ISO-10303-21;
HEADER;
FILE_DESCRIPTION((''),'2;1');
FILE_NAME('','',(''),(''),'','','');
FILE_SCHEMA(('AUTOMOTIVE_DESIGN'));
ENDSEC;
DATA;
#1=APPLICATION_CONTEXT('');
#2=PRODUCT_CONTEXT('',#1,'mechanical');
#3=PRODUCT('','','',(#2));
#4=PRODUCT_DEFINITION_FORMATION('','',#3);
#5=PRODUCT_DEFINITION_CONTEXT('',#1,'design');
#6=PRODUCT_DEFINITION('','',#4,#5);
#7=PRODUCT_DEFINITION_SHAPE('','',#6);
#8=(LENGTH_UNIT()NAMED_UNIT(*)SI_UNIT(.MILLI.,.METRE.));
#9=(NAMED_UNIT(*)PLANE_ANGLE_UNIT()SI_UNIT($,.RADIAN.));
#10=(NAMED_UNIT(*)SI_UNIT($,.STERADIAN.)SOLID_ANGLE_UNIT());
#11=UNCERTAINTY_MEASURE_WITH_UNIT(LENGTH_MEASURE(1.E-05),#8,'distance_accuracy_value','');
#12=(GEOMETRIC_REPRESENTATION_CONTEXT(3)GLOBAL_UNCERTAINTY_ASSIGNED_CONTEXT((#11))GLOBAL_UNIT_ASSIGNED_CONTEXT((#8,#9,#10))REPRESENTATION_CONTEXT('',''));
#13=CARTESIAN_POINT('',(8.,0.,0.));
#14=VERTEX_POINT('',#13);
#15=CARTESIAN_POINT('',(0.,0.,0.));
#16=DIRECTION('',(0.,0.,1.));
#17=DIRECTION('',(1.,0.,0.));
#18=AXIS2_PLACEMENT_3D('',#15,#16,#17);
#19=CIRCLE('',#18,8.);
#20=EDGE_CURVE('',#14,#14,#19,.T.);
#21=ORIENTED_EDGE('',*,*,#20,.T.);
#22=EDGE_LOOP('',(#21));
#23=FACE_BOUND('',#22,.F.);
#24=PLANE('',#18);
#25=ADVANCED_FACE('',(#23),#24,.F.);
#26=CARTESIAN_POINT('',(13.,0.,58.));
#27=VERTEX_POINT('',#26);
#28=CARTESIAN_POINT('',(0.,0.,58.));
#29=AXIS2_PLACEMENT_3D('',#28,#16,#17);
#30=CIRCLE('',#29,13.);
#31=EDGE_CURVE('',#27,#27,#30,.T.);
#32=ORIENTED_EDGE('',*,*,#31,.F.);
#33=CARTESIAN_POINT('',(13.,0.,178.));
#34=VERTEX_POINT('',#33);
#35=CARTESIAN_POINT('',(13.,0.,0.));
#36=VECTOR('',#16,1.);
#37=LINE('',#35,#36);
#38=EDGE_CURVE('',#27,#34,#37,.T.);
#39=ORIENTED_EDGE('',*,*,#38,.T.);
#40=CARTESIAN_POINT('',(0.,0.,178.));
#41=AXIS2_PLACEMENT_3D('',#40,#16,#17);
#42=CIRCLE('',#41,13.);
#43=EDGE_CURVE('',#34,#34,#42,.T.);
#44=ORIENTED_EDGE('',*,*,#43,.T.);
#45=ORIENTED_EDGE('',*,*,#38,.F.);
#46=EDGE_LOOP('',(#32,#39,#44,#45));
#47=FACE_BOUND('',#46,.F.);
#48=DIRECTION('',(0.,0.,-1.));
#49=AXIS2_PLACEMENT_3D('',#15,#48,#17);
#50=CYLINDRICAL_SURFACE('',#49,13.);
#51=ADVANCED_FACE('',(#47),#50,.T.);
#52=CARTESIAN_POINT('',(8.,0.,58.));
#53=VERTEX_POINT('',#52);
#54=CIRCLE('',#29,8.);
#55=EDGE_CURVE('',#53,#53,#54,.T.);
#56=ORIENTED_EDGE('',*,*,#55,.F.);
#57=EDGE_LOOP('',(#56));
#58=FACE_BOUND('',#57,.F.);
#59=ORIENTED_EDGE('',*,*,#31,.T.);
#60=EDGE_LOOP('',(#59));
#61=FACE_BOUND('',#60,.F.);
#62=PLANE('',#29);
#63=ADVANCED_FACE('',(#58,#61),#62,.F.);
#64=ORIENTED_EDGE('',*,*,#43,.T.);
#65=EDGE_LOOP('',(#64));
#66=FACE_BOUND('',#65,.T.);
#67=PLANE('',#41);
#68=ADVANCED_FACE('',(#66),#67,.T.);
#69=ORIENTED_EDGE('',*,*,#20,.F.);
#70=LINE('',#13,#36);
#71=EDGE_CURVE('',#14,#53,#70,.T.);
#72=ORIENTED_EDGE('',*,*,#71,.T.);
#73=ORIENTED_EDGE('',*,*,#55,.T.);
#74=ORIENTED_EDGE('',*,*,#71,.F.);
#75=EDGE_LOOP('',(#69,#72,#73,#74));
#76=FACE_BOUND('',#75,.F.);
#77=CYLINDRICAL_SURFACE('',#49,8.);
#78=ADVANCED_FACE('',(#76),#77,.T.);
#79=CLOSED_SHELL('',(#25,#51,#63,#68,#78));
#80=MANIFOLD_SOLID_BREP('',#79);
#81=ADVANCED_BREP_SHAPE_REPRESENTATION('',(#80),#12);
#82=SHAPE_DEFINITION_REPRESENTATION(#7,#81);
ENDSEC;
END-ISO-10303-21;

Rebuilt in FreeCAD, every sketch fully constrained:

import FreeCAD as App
import Part
import Sketcher

doc = App.newDocument("Part")
body = doc.addObject("PartDesign::Body", "Body")

sketch1 = body.newObject("Sketcher::SketchObject", "Sketch")
sketch1.AttachmentSupport = (doc.getObject("XY_Plane"), [""])
sketch1.MapMode = "FlatFace"
sketch1.addGeometry(Part.Circle(App.Vector(0, 0, 0), App.Vector(0, 0, 1), 13), False)
sketch1.addConstraint([
    Sketcher.Constraint("Coincident", 0, 3, -1, 1),
    Sketcher.Constraint("Diameter", 0, 26.0),
])
pad1 = body.newObject("PartDesign::Pad", "Pad")
pad1.Profile = sketch1
pad1.Length = 178

sketch2 = body.newObject("Sketcher::SketchObject", "Sketch001")
sketch2.AttachmentSupport = (doc.getObject("XY_Plane"), [""])
sketch2.MapMode = "FlatFace"
sketch2.addGeometry([
    Part.Circle(App.Vector(0, 0, 0), App.Vector(0, 0, 1), 13),
    Part.Circle(App.Vector(0, 0, 0), App.Vector(0, 0, 1), 8),
], False)
sketch2.addConstraint([
    Sketcher.Constraint("Coincident", 0, 3, -1, 1),
    Sketcher.Constraint("Coincident", 1, 3, -1, 1),
    Sketcher.Constraint("Diameter", 0, 26.0),
    Sketcher.Constraint("Diameter", 1, 16.0),
])
pocket1 = body.newObject("PartDesign::Pocket", "Pocket")
pocket1.Profile = sketch2
pocket1.Length = 58
pocket1.Reversed = True

doc.recompute()
